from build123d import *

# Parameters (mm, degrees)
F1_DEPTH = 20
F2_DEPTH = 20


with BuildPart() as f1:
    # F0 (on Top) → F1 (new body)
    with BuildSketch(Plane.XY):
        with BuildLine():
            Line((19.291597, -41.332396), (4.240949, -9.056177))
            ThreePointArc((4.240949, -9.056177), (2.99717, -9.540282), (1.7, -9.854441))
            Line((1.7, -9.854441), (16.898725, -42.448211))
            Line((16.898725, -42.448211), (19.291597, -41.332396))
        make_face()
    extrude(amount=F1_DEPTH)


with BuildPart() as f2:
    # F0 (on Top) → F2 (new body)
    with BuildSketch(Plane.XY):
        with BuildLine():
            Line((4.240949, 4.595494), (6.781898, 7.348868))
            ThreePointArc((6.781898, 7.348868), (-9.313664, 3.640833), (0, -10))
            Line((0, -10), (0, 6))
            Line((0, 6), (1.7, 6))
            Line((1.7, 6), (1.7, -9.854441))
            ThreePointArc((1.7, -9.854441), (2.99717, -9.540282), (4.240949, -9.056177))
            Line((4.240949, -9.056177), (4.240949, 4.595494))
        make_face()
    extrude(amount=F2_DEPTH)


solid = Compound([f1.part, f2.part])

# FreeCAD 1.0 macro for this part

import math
import FreeCAD as App
import Part
import Sketcher
Q = App.Units.Quantity

doc = App.newDocument("Part")
body = doc.addObject("PartDesign::Body", "Body")

sketch1 = body.newObject("Sketcher::SketchObject", "Sketch")
sketch1.AttachmentSupport = (doc.getObject("XY_Plane"), [""])
sketch1.MapMode = "FlatFace"
sketch1.addGeometry([
    Part.LineSegment(App.Vector(19.3, -41.3, 0), App.Vector(4.2, -9.1, 0)),
    Part.ArcOfCircle(Part.Circle(App.Vector(0, 0, 0), App.Vector(0, 0, 1), 10), math.radians(-80.21), math.radians(-64.91)),
    Part.LineSegment(App.Vector(1.7, -9.9, 0), App.Vector(16.9, -42.4, 0)),
    Part.LineSegment(App.Vector(16.9, -42.4, 0), App.Vector(19.3, -41.3, 0)),
], False)
sketch1.addConstraint([
    Sketcher.Constraint("Coincident", 0, 2, 1, 2),
    Sketcher.Constraint("Coincident", 1, 1, 2, 1),
    Sketcher.Constraint("Coincident", 2, 2, 3, 1),
    Sketcher.Constraint("Coincident", 3, 2, 0, 1),
    Sketcher.Constraint("Parallel", 0, 2),
    Sketcher.Constraint("Perpendicular", 2, 3),
    Sketcher.Constraint("Angle", 0, Q("115 deg")),
    Sketcher.Constraint("DistanceX", -1, 1, 1, 1, Q("1.7 mm")),
    Sketcher.Constraint("Radius", 1, Q("9.999945 mm")),
    Sketcher.Constraint("DistanceX", -1, 1, 0, 2, Q("4.240949 mm")),
    Sketcher.Constraint("DistanceY", 1, 1, -1, 1, Q("9.854441 mm")),
    Sketcher.Constraint("DistanceY", 2, 2, -1, 1, Q("42.448211 mm")),
    Sketcher.Constraint("DistanceX", 1, 3, 2, 2, Q("16.898712 mm")),
])
pad1 = body.newObject("PartDesign::Pad", "Pad")
pad1.Profile = sketch1
pad1.Length = 20
body2 = doc.addObject("PartDesign::Body", "Body001")

sketch2 = body2.newObject("Sketcher::SketchObject", "Sketch001")
sketch2.AttachmentSupport = (doc.getObject("XY_Plane001"), [""])
sketch2.MapMode = "FlatFace"
sketch2.addGeometry([
    Part.LineSegment(App.Vector(4.2, 4.6, 0), App.Vector(6.8, 7.3, 0)),
    Part.ArcOfCircle(Part.Circle(App.Vector(0, 0, 0), App.Vector(0, 0, 1), 10), math.radians(47), math.radians(270)),
    Part.LineSegment(App.Vector(0, -10, 0), App.Vector(0, 6, 0)),
    Part.LineSegment(App.Vector(0, 6, 0), App.Vector(1.7, 6, 0)),
    Part.LineSegment(App.Vector(1.7, 6, 0), App.Vector(1.7, -9.9, 0)),
    Part.ArcOfCircle(Part.Circle(App.Vector(0, 0, 0), App.Vector(0, 0, 1), 10), math.radians(-80.21), math.radians(-64.91)),
    Part.LineSegment(App.Vector(4.2, -9.1, 0), App.Vector(4.2, 4.6, 0)),
], False)
sketch2.addConstraint([
    Sketcher.Constraint("Coincident", 0, 2, 1, 1),
    Sketcher.Constraint("Coincident", 1, 2, 2, 1),
    Sketcher.Constraint("Coincident", 2, 2, 3, 1),
    Sketcher.Constraint("Coincident", 3, 2, 4, 1),
    Sketcher.Constraint("Coincident", 4, 2, 5, 1),
    Sketcher.Constraint("Coincident", 5, 2, 6, 1),
    Sketcher.Constraint("Coincident", 6, 2, 0, 1),
    Sketcher.Constraint("Vertical", 2),
    Sketcher.Constraint("Horizontal", 3),
    Sketcher.Constraint("Vertical", 4),
    Sketcher.Constraint("Vertical", 6),
    Sketcher.Constraint("Coincident", 1, 3, -1, 1),
    Sketcher.Constraint("PointOnObject", 1, 2, -2),
    Sketcher.Constraint("Radius", 1, Q("10 mm")),
    Sketcher.Constraint("DistanceY", 2, 1, 2, 2, Q("16 mm")),
    Sketcher.Constraint("DistanceX", 3, 1, 3, 2, Q("1.7 mm")),
    Sketcher.Constraint("Radius", 5, Q("9.999945 mm")),
    Sketcher.Constraint("DistanceY", 4, 2, 4, 1, Q("15.854441 mm")),
    Sketcher.Constraint("DistanceY", 6, 1, 6, 2, Q("13.651671 mm")),
    Sketcher.Constraint("DistanceX", 1, 3, 0, 2, Q("6.781898 mm")),
    Sketcher.Constraint("DistanceX", -1, 1, 5, 2, Q("4.240949 mm")),
    Sketcher.Constraint("DistanceY", 5, 3, 0, 2, Q("7.348921 mm")),
])
pad2 = body2.newObject("PartDesign::Pad", "Pad001")
pad2.Profile = sketch2
pad2.Length = 20

doc.recompute()
